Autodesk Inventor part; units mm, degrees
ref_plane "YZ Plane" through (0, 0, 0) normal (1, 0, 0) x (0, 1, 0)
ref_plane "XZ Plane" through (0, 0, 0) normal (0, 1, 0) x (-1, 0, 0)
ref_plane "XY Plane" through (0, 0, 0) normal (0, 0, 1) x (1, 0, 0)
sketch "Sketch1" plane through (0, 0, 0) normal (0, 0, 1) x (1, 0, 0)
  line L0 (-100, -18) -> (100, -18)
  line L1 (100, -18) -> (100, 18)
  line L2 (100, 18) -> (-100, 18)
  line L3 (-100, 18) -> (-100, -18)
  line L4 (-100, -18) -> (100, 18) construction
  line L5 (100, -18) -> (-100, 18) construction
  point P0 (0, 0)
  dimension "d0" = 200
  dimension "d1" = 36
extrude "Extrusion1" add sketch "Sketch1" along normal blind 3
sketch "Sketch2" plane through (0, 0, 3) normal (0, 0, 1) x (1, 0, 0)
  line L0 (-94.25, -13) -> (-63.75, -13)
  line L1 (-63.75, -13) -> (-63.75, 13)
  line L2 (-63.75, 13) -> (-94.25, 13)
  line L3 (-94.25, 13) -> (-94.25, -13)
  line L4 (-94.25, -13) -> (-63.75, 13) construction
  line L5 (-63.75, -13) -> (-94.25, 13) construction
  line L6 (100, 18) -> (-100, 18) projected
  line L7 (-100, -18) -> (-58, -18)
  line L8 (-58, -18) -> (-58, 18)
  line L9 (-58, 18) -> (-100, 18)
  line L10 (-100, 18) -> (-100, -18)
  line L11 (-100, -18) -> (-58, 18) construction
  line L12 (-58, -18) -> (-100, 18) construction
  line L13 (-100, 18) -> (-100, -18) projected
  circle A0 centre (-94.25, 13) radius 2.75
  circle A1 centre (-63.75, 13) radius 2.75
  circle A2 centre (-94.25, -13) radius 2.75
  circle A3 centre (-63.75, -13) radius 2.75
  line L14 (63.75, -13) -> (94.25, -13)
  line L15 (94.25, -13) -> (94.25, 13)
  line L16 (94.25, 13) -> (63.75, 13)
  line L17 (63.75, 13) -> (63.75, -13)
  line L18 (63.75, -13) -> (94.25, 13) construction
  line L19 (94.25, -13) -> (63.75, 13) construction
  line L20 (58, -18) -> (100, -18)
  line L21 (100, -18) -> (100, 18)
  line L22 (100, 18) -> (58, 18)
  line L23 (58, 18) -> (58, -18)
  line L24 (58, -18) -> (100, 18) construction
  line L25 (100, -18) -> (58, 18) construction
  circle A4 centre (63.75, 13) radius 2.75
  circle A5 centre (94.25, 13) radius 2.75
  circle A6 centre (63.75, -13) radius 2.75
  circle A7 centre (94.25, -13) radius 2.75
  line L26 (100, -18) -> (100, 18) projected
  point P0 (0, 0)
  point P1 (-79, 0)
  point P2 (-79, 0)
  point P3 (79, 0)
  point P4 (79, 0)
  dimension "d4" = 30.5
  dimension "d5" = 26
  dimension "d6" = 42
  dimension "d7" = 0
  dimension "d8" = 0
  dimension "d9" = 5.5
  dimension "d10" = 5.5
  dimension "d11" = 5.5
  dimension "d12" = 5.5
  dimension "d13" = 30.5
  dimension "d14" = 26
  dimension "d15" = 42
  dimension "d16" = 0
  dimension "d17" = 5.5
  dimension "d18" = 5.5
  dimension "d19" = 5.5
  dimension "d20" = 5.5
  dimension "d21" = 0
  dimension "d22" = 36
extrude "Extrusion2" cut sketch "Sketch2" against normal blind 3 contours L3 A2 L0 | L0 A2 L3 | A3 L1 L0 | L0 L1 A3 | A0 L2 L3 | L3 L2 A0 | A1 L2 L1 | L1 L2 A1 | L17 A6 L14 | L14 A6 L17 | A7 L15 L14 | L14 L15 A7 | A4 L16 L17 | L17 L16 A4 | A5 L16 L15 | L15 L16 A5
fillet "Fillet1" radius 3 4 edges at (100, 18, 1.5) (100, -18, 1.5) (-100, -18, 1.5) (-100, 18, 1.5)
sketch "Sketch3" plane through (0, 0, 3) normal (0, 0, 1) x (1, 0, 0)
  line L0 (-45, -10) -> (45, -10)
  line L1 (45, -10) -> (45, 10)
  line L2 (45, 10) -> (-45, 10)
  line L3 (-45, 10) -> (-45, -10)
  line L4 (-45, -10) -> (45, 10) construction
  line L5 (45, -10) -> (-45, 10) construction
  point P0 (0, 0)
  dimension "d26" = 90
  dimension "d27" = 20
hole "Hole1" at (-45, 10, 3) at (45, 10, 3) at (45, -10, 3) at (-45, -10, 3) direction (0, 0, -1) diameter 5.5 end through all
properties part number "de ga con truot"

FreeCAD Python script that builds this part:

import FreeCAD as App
import Part
import Sketcher
Q = App.Units.Quantity


def edges_at(feature, points):
    """Names of the edges that pass closest to the given points."""
    edges = feature.Shape.Edges
    near = lambda p: min(range(len(edges)), key=lambda i: edges[i].distToShape(Part.Vertex(*p))[0])
    return sorted({f"Edge{near(p) + 1}" for p in points})

doc = App.newDocument("Part")
body = doc.addObject("PartDesign::Body", "Body")

# Sketch on XY plane
sketch1 = doc.addObject("Sketcher::SketchObject", "Sketch")
body.addObject(sketch1)
sketch1.AttachmentSupport = (doc.XY_Plane, [""])
sketch1.MapMode = "FlatFace"
sketch1.addGeometry(Part.LineSegment(App.Vector(-100, 18, 0), App.Vector(-100, -18, 0)), False)
sketch1.addGeometry(Part.LineSegment(App.Vector(-100, -18, 0), App.Vector(100, -18, 0)), False)
sketch1.addGeometry(Part.LineSegment(App.Vector(100, -18, 0), App.Vector(100, 18, 0)), False)
sketch1.addGeometry(Part.LineSegment(App.Vector(100, 18, 0), App.Vector(-100, 18, 0)), False)
sketch1.addConstraint(Sketcher.Constraint("Coincident", 0, 2, 1, 1))
sketch1.addConstraint(Sketcher.Constraint("Coincident", 1, 2, 2, 1))
sketch1.addConstraint(Sketcher.Constraint("Coincident", 2, 2, 3, 1))
sketch1.addConstraint(Sketcher.Constraint("Coincident", 3, 2, 0, 1))
sketch1.addConstraint(Sketcher.Constraint("Vertical", 0))
sketch1.addConstraint(Sketcher.Constraint("Horizontal", 1))
sketch1.addConstraint(Sketcher.Constraint("Vertical", 2))
sketch1.addConstraint(Sketcher.Constraint("Horizontal", 3))
sketch1.addConstraint(Sketcher.Constraint("Symmetric", 0, 2, 2, 2, -1, 1))
sketch1.addConstraint(Sketcher.Constraint("DistanceX", 1, 1, 1, 2, Q("200 mm")))
sketch1.addConstraint(Sketcher.Constraint("DistanceY", 0, 2, 0, 1, Q("36 mm")))
pad1 = doc.addObject("PartDesign::Pad", "Pad")
body.addObject(pad1)
pad1.Profile = sketch1
pad1.Length = 3

# Sketch on XY plane
sketch2 = doc.addObject("Sketcher::SketchObject", "Sketch001")
body.addObject(sketch2)
sketch2.AttachmentSupport = (doc.XY_Plane, [""])
sketch2.MapMode = "FlatFace"
sketch2.AttachmentOffset = App.Placement(App.Vector(0, 0, 3), App.Rotation())
sketch2.addGeometry(Part.Circle(App.Vector(-94.25, -13, 0), App.Vector(0, 0, 1), 2.75), False)
sketch2.addGeometry(Part.Circle(App.Vector(-63.75, -13, 0), App.Vector(0, 0, 1), 2.75), False)
sketch2.addGeometry(Part.Circle(App.Vector(-94.25, 13, 0), App.Vector(0, 0, 1), 2.75), False)
sketch2.addGeometry(Part.Circle(App.Vector(-63.75, 13, 0), App.Vector(0, 0, 1), 2.75), False)
sketch2.addGeometry(Part.Circle(App.Vector(63.75, -13, 0), App.Vector(0, 0, 1), 2.75), False)
sketch2.addGeometry(Part.Circle(App.Vector(94.25, -13, 0), App.Vector(0, 0, 1), 2.75), False)
sketch2.addGeometry(Part.Circle(App.Vector(63.75, 13, 0), App.Vector(0, 0, 1), 2.75), False)
sketch2.addGeometry(Part.Circle(App.Vector(94.25, 13, 0), App.Vector(0, 0, 1), 2.75), False)
sketch2.addConstraint(Sketcher.Constraint("Equal", 0, 1))
sketch2.addConstraint(Sketcher.Constraint("Equal", 1, 2))
sketch2.addConstraint(Sketcher.Constraint("Equal", 2, 3))
sketch2.addConstraint(Sketcher.Constraint("Equal", 3, 4))
sketch2.addConstraint(Sketcher.Constraint("Equal", 4, 5))
sketch2.addConstraint(Sketcher.Constraint("Equal", 5, 6))
sketch2.addConstraint(Sketcher.Constraint("Equal", 6, 7))
sketch2.addConstraint(Sketcher.Constraint("Symmetric", 3, 3, 4, 3, -1, 1))
sketch2.addConstraint(Sketcher.Constraint("Symmetric", 2, 3, 5, 3, -1, 1))
sketch2.addConstraint(Sketcher.Constraint("Symmetric", 1, 3, 6, 3, -1, 1))
sketch2.addConstraint(Sketcher.Constraint("Symmetric", 0, 3, 7, 3, -1, 1))
sketch2.addConstraint(Sketcher.Constraint("Symmetric", 1, 3, 4, 3, -2))
sketch2.addConstraint(Sketcher.Constraint("Symmetric", 0, 3, 5, 3, -2))
sketch2.addConstraint(Sketcher.Constraint("Horizontal", 0, 3, 1, 3))
sketch2.addConstraint(Sketcher.Constraint("Diameter", 0, Q("5.5 mm")))
sketch2.addConstraint(Sketcher.Constraint("DistanceY", 0, 3, 2, 3, Q("26 mm")))
sketch2.addConstraint(Sketcher.Constraint("DistanceX", 0, 3, 1, 3, Q("30.5 mm")))
sketch2.addConstraint(Sketcher.Constraint("DistanceX", 0, 3, 4, 3, Q("158 mm")))
pocket1 = doc.addObject("PartDesign::Pocket", "Pocket")
body.addObject(pocket1)
pocket1.Profile = sketch2
pocket1.Length = 3
doc.recompute()

fillet = doc.addObject("PartDesign::Fillet", "Fillet")
body.addObject(fillet)
fillet.Base = (pocket1, edges_at(pocket1, [
    (100, 18, 1.5),
    (100, -18, 1.5),
    (-100, -18, 1.5),
    (-100, 18, 1.5),
]))
fillet.Radius = 3

# Sketch on XY plane
sketch3 = doc.addObject("Sketcher::SketchObject", "Sketch002")
body.addObject(sketch3)
sketch3.AttachmentSupport = (doc.XY_Plane, [""])
sketch3.MapMode = "FlatFace"
sketch3.AttachmentOffset = App.Placement(App.Vector(0, 0, 3), App.Rotation())
sketch3.addGeometry(Part.Circle(App.Vector(-45, 10, 0), App.Vector(0, 0, 1), 2.75), False)
sketch3.addGeometry(Part.Circle(App.Vector(45, 10, 0), App.Vector(0, 0, 1), 2.75), False)
sketch3.addGeometry(Part.Circle(App.Vector(45, -10, 0), App.Vector(0, 0, 1), 2.75), False)
sketch3.addGeometry(Part.Circle(App.Vector(-45, -10, 0), App.Vector(0, 0, 1), 2.75), False)
sketch3.addConstraint(Sketcher.Constraint("Equal", 0, 1))
sketch3.addConstraint(Sketcher.Constraint("Equal", 1, 2))
sketch3.addConstraint(Sketcher.Constraint("Equal", 2, 3))
sketch3.addConstraint(Sketcher.Constraint("Symmetric", 0, 3, 2, 3, -1, 1))
sketch3.addConstraint(Sketcher.Constraint("Symmetric", 1, 3, 3, 3, -1, 1))
sketch3.addConstraint(Sketcher.Constraint("Symmetric", 0, 3, 1, 3, -2))
sketch3.addConstraint(Sketcher.Constraint("Diameter", 0, Q("5.5 mm")))
sketch3.addConstraint(Sketcher.Constraint("DistanceX", 0, 3, -1, 1, Q("45 mm")))
sketch3.addConstraint(Sketcher.Constraint("DistanceY", -1, 1, 0, 3, Q("10 mm")))
doc.recompute()
hole = doc.addObject("PartDesign::Hole", "Hole")
body.addObject(hole)
hole.Profile = sketch3
hole.ThreadType = "None"
hole.Diameter = 5.5
hole.DepthType = "ThroughAll"

doc.recompute()
